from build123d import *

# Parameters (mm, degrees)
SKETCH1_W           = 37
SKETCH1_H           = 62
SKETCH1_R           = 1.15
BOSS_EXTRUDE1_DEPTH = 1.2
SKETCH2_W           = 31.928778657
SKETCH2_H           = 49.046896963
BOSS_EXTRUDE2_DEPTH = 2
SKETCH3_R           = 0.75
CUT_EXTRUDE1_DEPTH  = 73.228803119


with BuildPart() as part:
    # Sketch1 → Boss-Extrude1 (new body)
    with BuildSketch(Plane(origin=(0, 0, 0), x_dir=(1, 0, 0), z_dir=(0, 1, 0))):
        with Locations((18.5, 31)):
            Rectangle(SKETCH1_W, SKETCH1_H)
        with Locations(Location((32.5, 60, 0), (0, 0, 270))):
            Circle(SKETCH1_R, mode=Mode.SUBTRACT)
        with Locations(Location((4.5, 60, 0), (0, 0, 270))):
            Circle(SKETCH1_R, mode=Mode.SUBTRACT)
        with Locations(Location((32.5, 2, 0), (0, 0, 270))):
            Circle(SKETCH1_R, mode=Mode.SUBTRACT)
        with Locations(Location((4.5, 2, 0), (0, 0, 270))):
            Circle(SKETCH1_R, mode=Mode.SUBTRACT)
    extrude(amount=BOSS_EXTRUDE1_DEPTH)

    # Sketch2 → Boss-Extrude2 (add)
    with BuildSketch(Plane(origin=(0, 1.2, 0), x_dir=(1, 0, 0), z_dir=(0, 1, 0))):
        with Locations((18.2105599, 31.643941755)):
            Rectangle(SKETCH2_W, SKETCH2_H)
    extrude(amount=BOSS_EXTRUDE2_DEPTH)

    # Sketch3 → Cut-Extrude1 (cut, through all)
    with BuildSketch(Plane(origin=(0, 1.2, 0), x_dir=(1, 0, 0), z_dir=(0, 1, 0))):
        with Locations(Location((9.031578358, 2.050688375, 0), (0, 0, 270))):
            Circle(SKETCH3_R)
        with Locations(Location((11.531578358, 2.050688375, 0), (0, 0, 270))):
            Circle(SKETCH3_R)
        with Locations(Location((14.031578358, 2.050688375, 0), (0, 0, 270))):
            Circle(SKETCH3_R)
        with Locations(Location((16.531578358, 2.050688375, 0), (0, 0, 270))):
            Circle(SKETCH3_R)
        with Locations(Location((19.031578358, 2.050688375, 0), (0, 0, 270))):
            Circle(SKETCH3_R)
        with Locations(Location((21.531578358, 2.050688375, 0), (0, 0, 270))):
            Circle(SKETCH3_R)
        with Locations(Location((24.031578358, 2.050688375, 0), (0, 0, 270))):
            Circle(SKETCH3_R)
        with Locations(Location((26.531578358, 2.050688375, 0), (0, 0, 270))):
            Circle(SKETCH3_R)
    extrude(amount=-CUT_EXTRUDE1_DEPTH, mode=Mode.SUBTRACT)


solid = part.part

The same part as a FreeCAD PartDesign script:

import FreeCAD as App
import Part
import Sketcher
from FreeCAD import Vector
Q = App.Units.Quantity

doc = App.newDocument("Part")
body = doc.addObject("PartDesign::Body", "Body")

sketch1 = body.newObject("Sketcher::SketchObject", "Sketch")
sketch1.AttachmentSupport = (doc.getObject("XZ_Plane"), [""])
sketch1.MapMode = "FlatFace"
sketch1.addGeometry(Part.LineSegment(Vector(0, -62, 0), Vector(0, 0, 0)), False)
sketch1.addGeometry(Part.LineSegment(Vector(0, 0, 0), Vector(37, 0, 0)), False)
sketch1.addGeometry(Part.LineSegment(Vector(37, 0, 0), Vector(37, -62, 0)), False)
sketch1.addGeometry(Part.LineSegment(Vector(37, -62, 0), Vector(0, -62, 0)), False)
sketch1.addGeometry(Part.Circle(Vector(4.5, -2, 0), Vector(0, 0, 1), 1.15), False)
sketch1.addGeometry(Part.Circle(Vector(32.5, -2, 0), Vector(0, 0, 1), 1.15), False)
sketch1.addGeometry(Part.Circle(Vector(4.5, -60, 0), Vector(0, 0, 1), 1.15), False)
sketch1.addGeometry(Part.Circle(Vector(32.5, -60, 0), Vector(0, 0, 1), 1.15), False)
sketch1.addConstraint(Sketcher.Constraint("Coincident", 0, 2, 1, 1))
sketch1.addConstraint(Sketcher.Constraint("Coincident", 1, 2, 2, 1))
sketch1.addConstraint(Sketcher.Constraint("Coincident", 2, 2, 3, 1))
sketch1.addConstraint(Sketcher.Constraint("Coincident", 3, 2, 0, 1))
sketch1.addConstraint(Sketcher.Constraint("Vertical", 0))
sketch1.addConstraint(Sketcher.Constraint("Horizontal", 1))
sketch1.addConstraint(Sketcher.Constraint("Vertical", 2))
sketch1.addConstraint(Sketcher.Constraint("Horizontal", 3))
sketch1.addConstraint(Sketcher.Constraint("Coincident", 0, 2, -1, 1))
sketch1.addConstraint(Sketcher.Constraint("Equal", 4, 5))
sketch1.addConstraint(Sketcher.Constraint("Equal", 5, 6))
sketch1.addConstraint(Sketcher.Constraint("Equal", 6, 7))
sketch1.addConstraint(Sketcher.Constraint("Horizontal", 4, 3, 5, 3))
sketch1.addConstraint(Sketcher.Constraint("Horizontal", 6, 3, 7, 3))
sketch1.addConstraint(Sketcher.Constraint("Vertical", 4, 3, 6, 3))
sketch1.addConstraint(Sketcher.Constraint("Vertical", 5, 3, 7, 3))
sketch1.addConstraint(Sketcher.Constraint("Diameter", 4, Q("2.3 mm")))
sketch1.addConstraint(Sketcher.Constraint("DistanceX", 1, 1, 1, 2, Q("37 mm")))
sketch1.addConstraint(Sketcher.Constraint("DistanceY", 0, 1, 0, 2, Q("62 mm")))
sketch1.addConstraint(Sketcher.Constraint("DistanceY", 4, 3, -1, 1, Q("2 mm")))
sketch1.addConstraint(Sketcher.Constraint("DistanceY", 6, 3, -1, 1, Q("60 mm")))
sketch1.addConstraint(Sketcher.Constraint("DistanceX", 4, 3, 5, 3, Q("28 mm")))
sketch1.addConstraint(Sketcher.Constraint("DistanceX", -1, 1, 4, 3, Q("4.5 mm")))
pad1 = body.newObject("PartDesign::Pad", "Pad")
pad1.Profile = sketch1
pad1.Length = 1.2
pad1.Reversed = True

sketch2 = body.newObject("Sketcher::SketchObject", "Sketch001")
sketch2.AttachmentSupport = (doc.getObject("XZ_Plane"), [""])
sketch2.MapMode = "FlatFace"
sketch2.AttachmentOffset = App.Placement(Vector(0, 0, -1.2), App.Rotation())
sketch2.addGeometry(Part.LineSegment(Vector(2.246171, -56.16739, 0), Vector(2.246171, -7.120493, 0)), False)
sketch2.addGeometry(Part.LineSegment(Vector(2.246171, -7.120493, 0), Vector(34.174949, -7.120493, 0)), False)
sketch2.addGeometry(Part.LineSegment(Vector(34.174949, -7.120493, 0), Vector(34.174949, -56.16739, 0)), False)
sketch2.addGeometry(Part.LineSegment(Vector(34.174949, -56.16739, 0), Vector(2.246171, -56.16739, 0)), False)
sketch2.addConstraint(Sketcher.Constraint("Coincident", 0, 2, 1, 1))
sketch2.addConstraint(Sketcher.Constraint("Coincident", 1, 2, 2, 1))
sketch2.addConstraint(Sketcher.Constraint("Coincident", 2, 2, 3, 1))
sketch2.addConstraint(Sketcher.Constraint("Coincident", 3, 2, 0, 1))
sketch2.addConstraint(Sketcher.Constraint("Vertical", 0))
sketch2.addConstraint(Sketcher.Constraint("Horizontal", 1))
sketch2.addConstraint(Sketcher.Constraint("Vertical", 2))
sketch2.addConstraint(Sketcher.Constraint("Horizontal", 3))
sketch2.addConstraint(Sketcher.Constraint("DistanceX", 1, 1, 1, 2, Q("31.928779 mm")))
sketch2.addConstraint(Sketcher.Constraint("DistanceY", 0, 1, 0, 2, Q("49.046897 mm")))
sketch2.addConstraint(Sketcher.Constraint("DistanceX", -1, 1, 0, 2, Q("2.246171 mm")))
sketch2.addConstraint(Sketcher.Constraint("DistanceY", 2, 2, -1, 1, Q("56.16739 mm")))
pad2 = body.newObject("PartDesign::Pad", "Pad001")
pad2.Profile = sketch2
pad2.Length = 2
pad2.Reversed = True

sketch3 = body.newObject("Sketcher::SketchObject", "Sketch002")
sketch3.AttachmentSupport = (doc.getObject("XZ_Plane"), [""])
sketch3.MapMode = "FlatFace"
sketch3.AttachmentOffset = App.Placement(Vector(0, 0, -1.2), App.Rotation())
sketch3.addGeometry(Part.Circle(Vector(9.031578, -2.050688, 0), Vector(0, 0, 1), 0.75), False)
sketch3.addGeometry(Part.Circle(Vector(11.531578, -2.050688, 0), Vector(0, 0, 1), 0.75), False)
sketch3.addGeometry(Part.Circle(Vector(14.031578, -2.050688, 0), Vector(0, 0, 1), 0.75), False)
sketch3.addGeometry(Part.Circle(Vector(16.531578, -2.050688, 0), Vector(0, 0, 1), 0.75), False)
sketch3.addGeometry(Part.Circle(Vector(19.031578, -2.050688, 0), Vector(0, 0, 1), 0.75), False)
sketch3.addGeometry(Part.Circle(Vector(21.531578, -2.050688, 0), Vector(0, 0, 1), 0.75), False)
sketch3.addGeometry(Part.Circle(Vector(24.031578, -2.050688, 0), Vector(0, 0, 1), 0.75), False)
sketch3.addGeometry(Part.Circle(Vector(26.531578, -2.050688, 0), Vector(0, 0, 1), 0.75), False)
sketch3.addConstraint(Sketcher.Constraint("Equal", 0, 1))
sketch3.addConstraint(Sketcher.Constraint("Equal", 1, 2))
sketch3.addConstraint(Sketcher.Constraint("Equal", 2, 3))
sketch3.addConstraint(Sketcher.Constraint("Equal", 3, 4))
sketch3.addConstraint(Sketcher.Constraint("Equal", 4, 5))
sketch3.addConstraint(Sketcher.Constraint("Equal", 5, 6))
sketch3.addConstraint(Sketcher.Constraint("Equal", 6, 7))
sketch3.addConstraint(Sketcher.Constraint("Horizontal", 0, 3, 1, 3))
sketch3.addConstraint(Sketcher.Constraint("Horizontal", 1, 3, 2, 3))
sketch3.addConstraint(Sketcher.Constraint("Horizontal", 2, 3, 3, 3))
sketch3.addConstraint(Sketcher.Constraint("Horizontal", 3, 3, 4, 3))
sketch3.addConstraint(Sketcher.Constraint("Horizontal", 4, 3, 5, 3))
sketch3.addConstraint(Sketcher.Constraint("Horizontal", 5, 3, 6, 3))
sketch3.addConstraint(Sketcher.Constraint("Horizontal", 6, 3, 7, 3))
sketch3.addConstraint(Sketcher.Constraint("Diameter", 0, Q("1.5 mm")))
sketch3.addConstraint(Sketcher.Constraint("DistanceX", 0, 3, 2, 3, Q("5 mm")))
sketch3.addConstraint(Sketcher.Constraint("DistanceX", 1, 3, 3, 3, Q("5 mm")))
sketch3.addConstraint(Sketcher.Constraint("DistanceX", 2, 3, 4, 3, Q("5 mm")))
sketch3.addConstraint(Sketcher.Constraint("DistanceX", 3, 3, 5, 3, Q("5 mm")))
sketch3.addConstraint(Sketcher.Constraint("DistanceX", 4, 3, 6, 3, Q("5 mm")))
sketch3.addConstraint(Sketcher.Constraint("DistanceX", 5, 3, 7, 3, Q("5 mm")))
sketch3.addConstraint(Sketcher.Constraint("DistanceX", 0, 3, 1, 3, Q("2.5 mm")))
sketch3.addConstraint(Sketcher.Constraint("DistanceX", -1, 1, 0, 3, Q("9.031578 mm")))
sketch3.addConstraint(Sketcher.Constraint("DistanceY", 0, 3, -1, 1, Q("2.050688 mm")))
pocket1 = body.newObject("PartDesign::Pocket", "Pocket")
pocket1.Profile = sketch3
pocket1.Type = "ThroughAll"
pocket1.Reversed = True

doc.recompute()
